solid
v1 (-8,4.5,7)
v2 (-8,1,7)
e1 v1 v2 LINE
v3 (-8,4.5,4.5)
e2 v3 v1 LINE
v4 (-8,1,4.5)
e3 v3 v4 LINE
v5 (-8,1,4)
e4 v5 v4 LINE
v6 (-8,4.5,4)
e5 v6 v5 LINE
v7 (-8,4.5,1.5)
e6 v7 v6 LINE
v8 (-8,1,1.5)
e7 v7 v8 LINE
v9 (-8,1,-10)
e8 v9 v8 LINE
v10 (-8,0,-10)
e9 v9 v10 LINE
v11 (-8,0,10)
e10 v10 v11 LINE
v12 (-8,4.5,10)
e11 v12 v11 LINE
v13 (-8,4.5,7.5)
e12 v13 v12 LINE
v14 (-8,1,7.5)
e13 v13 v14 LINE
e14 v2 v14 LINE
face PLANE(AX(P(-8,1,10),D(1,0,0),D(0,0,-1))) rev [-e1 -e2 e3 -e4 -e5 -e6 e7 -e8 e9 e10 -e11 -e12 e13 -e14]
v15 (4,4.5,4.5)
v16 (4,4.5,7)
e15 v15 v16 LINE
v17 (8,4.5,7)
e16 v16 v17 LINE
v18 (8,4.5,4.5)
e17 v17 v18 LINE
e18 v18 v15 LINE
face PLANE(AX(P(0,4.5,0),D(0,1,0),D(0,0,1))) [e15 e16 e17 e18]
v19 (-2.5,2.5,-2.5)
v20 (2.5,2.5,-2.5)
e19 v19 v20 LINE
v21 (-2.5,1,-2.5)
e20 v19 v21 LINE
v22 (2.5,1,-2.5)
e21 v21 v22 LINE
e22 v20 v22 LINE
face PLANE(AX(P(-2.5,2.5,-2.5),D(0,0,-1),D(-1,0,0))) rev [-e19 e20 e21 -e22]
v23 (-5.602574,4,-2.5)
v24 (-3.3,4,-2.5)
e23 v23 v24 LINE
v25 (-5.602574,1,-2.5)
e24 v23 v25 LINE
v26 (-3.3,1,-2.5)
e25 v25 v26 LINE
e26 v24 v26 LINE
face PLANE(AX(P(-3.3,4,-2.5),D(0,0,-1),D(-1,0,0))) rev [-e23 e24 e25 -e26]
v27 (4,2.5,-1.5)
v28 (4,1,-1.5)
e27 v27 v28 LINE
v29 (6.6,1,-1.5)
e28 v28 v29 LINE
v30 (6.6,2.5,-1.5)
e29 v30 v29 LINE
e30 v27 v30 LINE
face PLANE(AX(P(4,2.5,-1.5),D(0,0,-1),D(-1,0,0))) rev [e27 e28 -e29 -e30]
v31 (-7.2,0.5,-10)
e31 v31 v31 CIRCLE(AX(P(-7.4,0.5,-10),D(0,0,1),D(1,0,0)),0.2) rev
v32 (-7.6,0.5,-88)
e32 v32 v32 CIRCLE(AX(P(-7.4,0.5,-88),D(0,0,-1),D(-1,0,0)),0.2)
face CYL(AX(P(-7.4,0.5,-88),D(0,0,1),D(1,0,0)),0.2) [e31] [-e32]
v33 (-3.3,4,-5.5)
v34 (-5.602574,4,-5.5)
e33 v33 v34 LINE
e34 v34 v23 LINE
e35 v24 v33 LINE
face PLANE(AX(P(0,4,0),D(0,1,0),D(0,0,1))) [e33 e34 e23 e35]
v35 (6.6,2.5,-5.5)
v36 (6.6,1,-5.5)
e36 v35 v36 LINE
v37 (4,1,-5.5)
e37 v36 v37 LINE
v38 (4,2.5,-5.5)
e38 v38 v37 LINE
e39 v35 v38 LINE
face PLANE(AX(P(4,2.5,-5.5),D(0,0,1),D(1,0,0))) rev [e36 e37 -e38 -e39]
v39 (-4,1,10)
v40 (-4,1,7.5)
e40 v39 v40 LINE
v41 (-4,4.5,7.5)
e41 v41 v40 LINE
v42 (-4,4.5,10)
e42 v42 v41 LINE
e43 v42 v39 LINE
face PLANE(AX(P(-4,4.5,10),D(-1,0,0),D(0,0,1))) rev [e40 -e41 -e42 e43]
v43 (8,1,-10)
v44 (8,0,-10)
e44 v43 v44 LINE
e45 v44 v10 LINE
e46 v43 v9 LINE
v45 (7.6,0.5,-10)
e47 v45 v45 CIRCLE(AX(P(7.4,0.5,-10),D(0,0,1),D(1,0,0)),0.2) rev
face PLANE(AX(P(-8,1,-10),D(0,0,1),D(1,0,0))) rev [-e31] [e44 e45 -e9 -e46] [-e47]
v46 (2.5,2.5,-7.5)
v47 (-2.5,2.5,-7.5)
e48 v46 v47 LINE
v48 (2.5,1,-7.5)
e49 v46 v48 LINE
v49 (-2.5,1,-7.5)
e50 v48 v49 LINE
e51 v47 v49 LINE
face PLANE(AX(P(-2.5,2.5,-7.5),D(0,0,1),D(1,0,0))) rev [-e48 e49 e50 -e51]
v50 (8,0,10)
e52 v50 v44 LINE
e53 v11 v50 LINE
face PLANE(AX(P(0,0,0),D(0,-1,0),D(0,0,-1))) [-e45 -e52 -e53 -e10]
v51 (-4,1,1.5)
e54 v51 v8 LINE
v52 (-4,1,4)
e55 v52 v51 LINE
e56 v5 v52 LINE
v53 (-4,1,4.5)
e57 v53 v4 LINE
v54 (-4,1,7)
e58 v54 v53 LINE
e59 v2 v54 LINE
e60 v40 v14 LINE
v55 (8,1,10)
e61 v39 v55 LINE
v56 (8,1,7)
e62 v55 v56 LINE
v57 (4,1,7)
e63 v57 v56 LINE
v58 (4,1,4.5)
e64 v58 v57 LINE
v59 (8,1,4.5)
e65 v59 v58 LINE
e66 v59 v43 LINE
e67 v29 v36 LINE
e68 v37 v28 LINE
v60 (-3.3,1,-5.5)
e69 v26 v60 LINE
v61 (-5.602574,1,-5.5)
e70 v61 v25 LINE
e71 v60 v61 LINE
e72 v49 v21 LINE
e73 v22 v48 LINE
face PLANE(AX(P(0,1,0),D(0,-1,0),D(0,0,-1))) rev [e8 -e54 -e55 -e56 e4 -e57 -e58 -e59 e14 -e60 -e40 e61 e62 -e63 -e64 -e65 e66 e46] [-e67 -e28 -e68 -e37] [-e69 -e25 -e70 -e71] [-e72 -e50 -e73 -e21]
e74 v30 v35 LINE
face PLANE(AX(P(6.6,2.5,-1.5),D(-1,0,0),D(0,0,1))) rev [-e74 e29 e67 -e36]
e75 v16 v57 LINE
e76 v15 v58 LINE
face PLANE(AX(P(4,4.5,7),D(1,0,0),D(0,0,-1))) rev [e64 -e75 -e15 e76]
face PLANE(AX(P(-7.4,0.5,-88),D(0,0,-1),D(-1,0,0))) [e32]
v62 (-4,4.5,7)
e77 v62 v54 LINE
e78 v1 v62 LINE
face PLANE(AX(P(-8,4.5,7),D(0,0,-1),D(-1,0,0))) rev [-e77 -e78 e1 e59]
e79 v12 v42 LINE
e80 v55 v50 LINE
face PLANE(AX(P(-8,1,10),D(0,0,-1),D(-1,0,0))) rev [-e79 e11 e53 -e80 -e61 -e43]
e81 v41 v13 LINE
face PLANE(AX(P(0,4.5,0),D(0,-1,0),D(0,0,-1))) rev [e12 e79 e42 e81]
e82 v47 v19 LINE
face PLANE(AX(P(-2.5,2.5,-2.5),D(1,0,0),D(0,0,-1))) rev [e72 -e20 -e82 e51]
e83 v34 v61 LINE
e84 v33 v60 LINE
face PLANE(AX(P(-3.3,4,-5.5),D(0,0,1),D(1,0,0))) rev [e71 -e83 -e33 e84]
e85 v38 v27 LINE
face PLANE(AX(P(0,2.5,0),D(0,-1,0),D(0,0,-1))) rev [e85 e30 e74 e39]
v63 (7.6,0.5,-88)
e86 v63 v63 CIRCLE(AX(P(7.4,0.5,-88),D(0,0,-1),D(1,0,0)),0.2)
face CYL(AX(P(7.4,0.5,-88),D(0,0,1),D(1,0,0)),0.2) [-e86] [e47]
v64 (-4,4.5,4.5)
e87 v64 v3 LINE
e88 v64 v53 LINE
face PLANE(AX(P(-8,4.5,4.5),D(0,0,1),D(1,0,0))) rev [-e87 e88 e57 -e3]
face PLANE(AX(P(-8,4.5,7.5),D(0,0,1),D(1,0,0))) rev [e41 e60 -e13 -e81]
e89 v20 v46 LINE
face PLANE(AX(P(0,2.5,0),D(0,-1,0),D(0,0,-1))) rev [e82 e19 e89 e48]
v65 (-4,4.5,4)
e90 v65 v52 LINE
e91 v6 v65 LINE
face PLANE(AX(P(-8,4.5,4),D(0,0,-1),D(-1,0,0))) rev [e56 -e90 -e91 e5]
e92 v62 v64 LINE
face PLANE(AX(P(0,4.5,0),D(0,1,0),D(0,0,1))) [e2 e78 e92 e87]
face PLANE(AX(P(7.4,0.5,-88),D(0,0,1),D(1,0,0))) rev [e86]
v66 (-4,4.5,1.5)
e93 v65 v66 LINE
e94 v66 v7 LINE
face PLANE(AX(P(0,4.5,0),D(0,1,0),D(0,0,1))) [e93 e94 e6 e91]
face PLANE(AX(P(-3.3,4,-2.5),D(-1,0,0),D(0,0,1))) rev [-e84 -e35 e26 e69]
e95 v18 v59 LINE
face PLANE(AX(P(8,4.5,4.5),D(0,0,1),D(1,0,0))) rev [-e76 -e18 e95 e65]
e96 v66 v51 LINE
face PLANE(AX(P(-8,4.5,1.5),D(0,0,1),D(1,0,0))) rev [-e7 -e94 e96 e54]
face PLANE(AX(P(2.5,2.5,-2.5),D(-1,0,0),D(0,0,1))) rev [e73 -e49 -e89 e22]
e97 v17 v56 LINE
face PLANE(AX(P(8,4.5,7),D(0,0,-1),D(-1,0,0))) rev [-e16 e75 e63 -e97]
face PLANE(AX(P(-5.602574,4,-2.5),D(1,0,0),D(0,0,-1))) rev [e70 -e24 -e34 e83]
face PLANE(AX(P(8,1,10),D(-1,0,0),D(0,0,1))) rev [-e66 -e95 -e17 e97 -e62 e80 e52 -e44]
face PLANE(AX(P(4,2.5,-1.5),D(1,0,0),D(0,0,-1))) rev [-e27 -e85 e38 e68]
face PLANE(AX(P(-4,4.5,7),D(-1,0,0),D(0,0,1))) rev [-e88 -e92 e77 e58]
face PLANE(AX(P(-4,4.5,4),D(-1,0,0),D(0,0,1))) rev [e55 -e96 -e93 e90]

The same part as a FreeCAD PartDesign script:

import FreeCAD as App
import Part
import Sketcher

V = App.Vector

doc = App.newDocument("Part")
body = doc.addObject("PartDesign::Body", "Body")

# Sketch on XZ plane
sketch1 = body.newObject("Sketcher::SketchObject", "Sketch")
sketch1.AttachmentSupport = (doc.getObject("XZ_Plane"), [""])
sketch1.MapMode = "FlatFace"
sketch1.addGeometry([
    Part.LineSegment(V(-8, -10, 0), V(-8, 10, 0)),
    Part.LineSegment(V(-8, 10, 0), V(8, 10, 0)),
    Part.LineSegment(V(8, 10, 0), V(8, -10, 0)),
    Part.LineSegment(V(8, -10, 0), V(-8, -10, 0)),
], False)
sketch1.addConstraint([
    Sketcher.Constraint("Coincident", 0, 2, 1, 1),
    Sketcher.Constraint("Coincident", 1, 2, 2, 1),
    Sketcher.Constraint("Coincident", 2, 2, 3, 1),
    Sketcher.Constraint("Coincident", 3, 2, 0, 1),
    Sketcher.Constraint("Vertical", 0),
    Sketcher.Constraint("Horizontal", 1),
    Sketcher.Constraint("Vertical", 2),
    Sketcher.Constraint("Horizontal", 3),
    Sketcher.Constraint("Symmetric", 0, 2, 2, 2, -1, 1),
    Sketcher.Constraint("DistanceX", 1, 1, 1, 2, 16.0),
    Sketcher.Constraint("DistanceY", 0, 1, 0, 2, 20.0),
])
pad1 = body.newObject("PartDesign::Pad", "Pad")
pad1.Profile = sketch1
pad1.Length = 1
pad1.Reversed = True

# Sketch on XZ plane
sketch2 = body.newObject("Sketcher::SketchObject", "Sketch001")
sketch2.AttachmentSupport = (doc.getObject("XZ_Plane"), [""])
sketch2.MapMode = "FlatFace"
sketch2.AttachmentOffset = App.Placement(V(0, 0, -1), App.Rotation())
sketch2.addGeometry([
    Part.LineSegment(V(-8, 4.5, 0), V(-8, 7, 0)),  # 0
    Part.LineSegment(V(-8, 7, 0), V(-4, 7, 0)),  # 1
    Part.LineSegment(V(-4, 7, 0), V(-4, 4.5, 0)),  # 2
    Part.LineSegment(V(-4, 4.5, 0), V(-8, 4.5, 0)),  # 3
    Part.LineSegment(V(-8, 7.5, 0), V(-8, 10, 0)),  # 4
    Part.LineSegment(V(-8, 10, 0), V(-4, 10, 0)),  # 5
    Part.LineSegment(V(-4, 10, 0), V(-4, 7.5, 0)),  # 6
    Part.LineSegment(V(-4, 7.5, 0), V(-8, 7.5, 0)),  # 7
    Part.LineSegment(V(-8, 1.5, 0), V(-8, 4, 0)),  # 8
    Part.LineSegment(V(-8, 4, 0), V(-4, 4, 0)),  # 9
    Part.LineSegment(V(-4, 4, 0), V(-4, 1.5, 0)),  # 10
    Part.LineSegment(V(-4, 1.5, 0), V(-8, 1.5, 0)),  # 11
    Part.LineSegment(V(4, 4.5, 0), V(4, 7, 0)),  # 12
    Part.LineSegment(V(4, 7, 0), V(8, 7, 0)),  # 13
    Part.LineSegment(V(8, 7, 0), V(8, 4.5, 0)),  # 14
    Part.LineSegment(V(8, 4.5, 0), V(4, 4.5, 0)),  # 15
], False)
sketch2.addConstraint([
    Sketcher.Constraint("Coincident", 0, 2, 1, 1),
    Sketcher.Constraint("Coincident", 1, 2, 2, 1),
    Sketcher.Constraint("Coincident", 2, 2, 3, 1),
    Sketcher.Constraint("Coincident", 3, 2, 0, 1),
    Sketcher.Constraint("Coincident", 4, 2, 5, 1),
    Sketcher.Constraint("Coincident", 5, 2, 6, 1),
    Sketcher.Constraint("Coincident", 6, 2, 7, 1),
    Sketcher.Constraint("Coincident", 7, 2, 4, 1),
    Sketcher.Constraint("Coincident", 8, 2, 9, 1),
    Sketcher.Constraint("Coincident", 9, 2, 10, 1),
    Sketcher.Constraint("Coincident", 10, 2, 11, 1),
    Sketcher.Constraint("Coincident", 11, 2, 8, 1),
    Sketcher.Constraint("Coincident", 12, 2, 13, 1),
    Sketcher.Constraint("Coincident", 13, 2, 14, 1),
    Sketcher.Constraint("Coincident", 14, 2, 15, 1),
    Sketcher.Constraint("Coincident", 15, 2, 12, 1),
    Sketcher.Constraint("Vertical", 0),
    Sketcher.Constraint("Horizontal", 1),
    Sketcher.Constraint("Vertical", 2),
    Sketcher.Constraint("Horizontal", 3),
    Sketcher.Constraint("Vertical", 4),
    Sketcher.Constraint("Horizontal", 5),
    Sketcher.Constraint("Vertical", 6),
    Sketcher.Constraint("Horizontal", 7),
    Sketcher.Constraint("Vertical", 8),
    Sketcher.Constraint("Horizontal", 9),
    Sketcher.Constraint("Vertical", 10),
    Sketcher.Constraint("Horizontal", 11),
    Sketcher.Constraint("Vertical", 12),
    Sketcher.Constraint("Horizontal", 13),
    Sketcher.Constraint("Vertical", 14),
    Sketcher.Constraint("Horizontal", 15),
    Sketcher.Constraint("Symmetric", 1, 2, 12, 2, -2),
    Sketcher.Constraint("Symmetric", 3, 2, 14, 2, -2),
    Sketcher.Constraint("Vertical", 3, 2, 4, 2),
    Sketcher.Constraint("Vertical", 2, 2, 5, 2),
    Sketcher.Constraint("Vertical", 7, 2, 8, 2),
    Sketcher.Constraint("Vertical", 6, 2, 9, 2),
    Sketcher.Constraint("Equal", 2, 4),
    Sketcher.Constraint("Equal", 6, 8),
    Sketcher.Constraint("DistanceX", 1, 1, 1, 2, 4.0),
    Sketcher.Constraint("DistanceY", 0, 1, 0, 2, 2.5),
    Sketcher.Constraint("DistanceX", 0, 2, -1, 1, 8.0),
    Sketcher.Constraint("DistanceY", -1, 1, 0, 2, 7.0),
    Sketcher.Constraint("DistanceY", -1, 1, 4, 2, 10.0),
    Sketcher.Constraint("DistanceY", -1, 1, 8, 2, 4.0),
])
pad2 = body.newObject("PartDesign::Pad", "Pad001")
pad2.Profile = sketch2
pad2.Length = 3.5
pad2.Reversed = True

# Sketch on XZ plane
sketch3 = body.newObject("Sketcher::SketchObject", "Sketch002")
sketch3.AttachmentSupport = (doc.getObject("XZ_Plane"), [""])
sketch3.MapMode = "FlatFace"
sketch3.AttachmentOffset = App.Placement(V(0, 0, -1), App.Rotation())
sketch3.addGeometry([
    Part.LineSegment(V(-2.5, -7.5, 0), V(-2.5, -2.5, 0)),  # 0
    Part.LineSegment(V(-2.5, -2.5, 0), V(2.5, -2.5, 0)),  # 1
    Part.LineSegment(V(2.5, -2.5, 0), V(2.5, -7.5, 0)),  # 2
    Part.LineSegment(V(2.5, -7.5, 0), V(-2.5, -7.5, 0)),  # 3
    Part.LineSegment(V(4, -5.5, 0), V(4, -1.5, 0)),  # 4
    Part.LineSegment(V(4, -1.5, 0), V(6.6, -1.5, 0)),  # 5
    Part.LineSegment(V(6.6, -1.5, 0), V(6.6, -5.5, 0)),  # 6
    Part.LineSegment(V(6.6, -5.5, 0), V(4, -5.5, 0)),  # 7
], False)
sketch3.addConstraint([
    Sketcher.Constraint("Coincident", 0, 2, 1, 1),
    Sketcher.Constraint("Coincident", 1, 2, 2, 1),
    Sketcher.Constraint("Coincident", 2, 2, 3, 1),
    Sketcher.Constraint("Coincident", 3, 2, 0, 1),
    Sketcher.Constraint("Coincident", 4, 2, 5, 1),
    Sketcher.Constraint("Coincident", 5, 2, 6, 1),
    Sketcher.Constraint("Coincident", 6, 2, 7, 1),
    Sketcher.Constraint("Coincident", 7, 2, 4, 1),
    Sketcher.Constraint("Vertical", 0),
    Sketcher.Constraint("Horizontal", 1),
    Sketcher.Constraint("Vertical", 2),
    Sketcher.Constraint("Horizontal", 3),
    Sketcher.Constraint("Vertical", 4),
    Sketcher.Constraint("Horizontal", 5),
    Sketcher.Constraint("Vertical", 6),
    Sketcher.Constraint("Horizontal", 7),
    Sketcher.Constraint("Equal", 3, 0),
    Sketcher.Constraint("DistanceX", 1, 1, 1, 2, 5.0),
    Sketcher.Constraint("DistanceY", 4, 1, 4, 2, 4.0),
    Sketcher.Constraint("DistanceX", 5, 1, 5, 2, 2.6),
    Sketcher.Constraint("DistanceX", -1, 1, 4, 2, 4.0),
    Sketcher.Constraint("DistanceY", 1, 2, 4, 2, 1.0),
    Sketcher.Constraint("DistanceX", 0, 2, -1, 1, 2.5),
    Sketcher.Constraint("DistanceY", 0, 2, -1, 1, 2.5),
])
pad3 = body.newObject("PartDesign::Pad", "Pad002")
pad3.Profile = sketch3
pad3.Length = 1.5
pad3.Reversed = True

# Sketch on XZ plane
sketch4 = body.newObject("Sketcher::SketchObject", "Sketch003")
sketch4.AttachmentSupport = (doc.getObject("XZ_Plane"), [""])
sketch4.MapMode = "FlatFace"
sketch4.AttachmentOffset = App.Placement(V(0, 0, -1), App.Rotation())
sketch4.addGeometry([
    Part.LineSegment(V(-5.6, -5.5, 0), V(-5.6, -2.5, 0)),
    Part.LineSegment(V(-5.6, -2.5, 0), V(-3.3, -2.5, 0)),
    Part.LineSegment(V(-3.3, -2.5, 0), V(-3.3, -5.5, 0)),
    Part.LineSegment(V(-3.3, -5.5, 0), V(-5.6, -5.5, 0)),
], False)
sketch4.addConstraint([
    Sketcher.Constraint("Coincident", 0, 2, 1, 1),
    Sketcher.Constraint("Coincident", 1, 2, 2, 1),
    Sketcher.Constraint("Coincident", 2, 2, 3, 1),
    Sketcher.Constraint("Coincident", 3, 2, 0, 1),
    Sketcher.Constraint("Vertical", 0),
    Sketcher.Constraint("Horizontal", 1),
    Sketcher.Constraint("Vertical", 2),
    Sketcher.Constraint("Horizontal", 3),
    Sketcher.Constraint("DistanceY", 0, 1, 0, 2, 3.0),
    Sketcher.Constraint("DistanceY", 0, 2, -1, 1, 2.5),
    Sketcher.Constraint("DistanceX", 1, 2, -1, 1, 3.3),
    Sketcher.Constraint("DistanceX", 1, 1, 1, 2, 2.302574),
])
pad4 = body.newObject("PartDesign::Pad", "Pad003")
pad4.Profile = sketch4
pad4.Length = 3
pad4.Reversed = True

# Sketch on XY plane
sketch5 = body.newObject("Sketcher::SketchObject", "Sketch004")
sketch5.AttachmentSupport = (doc.getObject("XY_Plane"), [""])
sketch5.MapMode = "FlatFace"
sketch5.AttachmentOffset = App.Placement(V(0, 0, -10), App.Rotation())
sketch5.addGeometry([
    Part.Circle(V(-7.4, 0.5, 0), V(0, 0, 1), 0.2),
    Part.Circle(V(7.4, 0.5, 0), V(0, 0, 1), 0.2),
], False)
sketch5.addConstraint([
    Sketcher.Constraint("Equal", 0, 1),
    Sketcher.Constraint("Symmetric", 0, 3, 1, 3, -2),
    Sketcher.Constraint("Diameter", 0, 0.4),
    Sketcher.Constraint("DistanceX", 0, 3, -1, 1, 7.4),
    Sketcher.Constraint("DistanceY", -1, 1, 0, 3, 0.5),
])
pad5 = body.newObject("PartDesign::Pad", "Pad004")
pad5.Profile = sketch5
pad5.Length = 78
pad5.Reversed = True

doc.recompute()
